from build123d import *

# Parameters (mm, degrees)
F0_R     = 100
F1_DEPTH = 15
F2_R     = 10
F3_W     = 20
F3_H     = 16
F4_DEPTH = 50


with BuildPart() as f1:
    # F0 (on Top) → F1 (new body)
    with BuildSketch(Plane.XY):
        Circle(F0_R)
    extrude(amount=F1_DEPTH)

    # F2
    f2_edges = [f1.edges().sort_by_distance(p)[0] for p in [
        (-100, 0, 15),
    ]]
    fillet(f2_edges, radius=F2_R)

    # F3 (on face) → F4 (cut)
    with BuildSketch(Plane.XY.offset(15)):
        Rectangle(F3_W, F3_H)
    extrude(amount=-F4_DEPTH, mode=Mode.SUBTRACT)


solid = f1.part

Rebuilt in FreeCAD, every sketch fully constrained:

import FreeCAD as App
import Part
import Sketcher
from FreeCAD import Vector
Q = App.Units.Quantity


def edges_at(feature, points):
    """Names of the edges that pass closest to the given points."""
    edges = feature.Shape.Edges
    near = lambda p: min(range(len(edges)), key=lambda i: edges[i].distToShape(Part.Vertex(*p))[0])
    return sorted({f"Edge{near(p) + 1}" for p in points})

doc = App.newDocument("Part")
params = doc.addObject("Spreadsheet::Sheet", "Params")
for row, (alias, value) in enumerate([
    ("sketch1_diameter", "200 mm"),
    ("pad1_length", "15 mm"),
    ("fillet_radius", "10 mm"),
    ("sketch2_width", "20 mm"),
    ("sketch2_height", "16 mm"),
    ("pocket1_length", "50 mm"),
], start=1):
    params.set(f"A{row}", alias)
    params.set(f"B{row}", "=" + value)
    params.setAlias(f"B{row}", alias)

body = doc.addObject("PartDesign::Body", "Body")

# Sketch on XY plane
sketch1 = body.newObject("Sketcher::SketchObject", "Sketch")
sketch1.AttachmentSupport = (doc.getObject("XY_Plane"), [""])
sketch1.MapMode = "FlatFace"
sketch1.addGeometry(Part.Circle(Vector(0, 0, 0), Vector(0, 0, 1), 100), False)
sketch1.addConstraint([
    Sketcher.Constraint("Coincident", 0, 3, -1, 1),
    Sketcher.Constraint("Diameter", 0, Q("200 mm")),
])
sketch1.setExpression("Constraints[1]", "Params.sketch1_diameter")
pad1 = body.newObject("PartDesign::Pad", "Pad")
pad1.Profile = sketch1
pad1.setExpression("Length", "Params.pad1_length")
doc.recompute()

fillet = body.newObject("PartDesign::Fillet", "Fillet")
fillet.Base = (pad1, edges_at(pad1, [(-100, 0, 15)]))
fillet.setExpression("Radius", "Params.fillet_radius")

# Sketch on XY plane
sketch2 = body.newObject("Sketcher::SketchObject", "Sketch001")
sketch2.AttachmentSupport = (doc.getObject("XY_Plane"), [""])
sketch2.MapMode = "FlatFace"
sketch2.AttachmentOffset = App.Placement(Vector(0, 0, 15), App.Rotation())
sketch2.addGeometry([
    Part.LineSegment(Vector(-10, 8, 0), Vector(-10, -8, 0)),
    Part.LineSegment(Vector(-10, -8, 0), Vector(10, -8, 0)),
    Part.LineSegment(Vector(10, -8, 0), Vector(10, 8, 0)),
    Part.LineSegment(Vector(10, 8, 0), Vector(-10, 8, 0)),
], False)
sketch2.addConstraint([
    Sketcher.Constraint("Coincident", 0, 2, 1, 1),
    Sketcher.Constraint("Coincident", 1, 2, 2, 1),
    Sketcher.Constraint("Coincident", 2, 2, 3, 1),
    Sketcher.Constraint("Coincident", 3, 2, 0, 1),
    Sketcher.Constraint("Vertical", 0),
    Sketcher.Constraint("Horizontal", 1),
    Sketcher.Constraint("Vertical", 2),
    Sketcher.Constraint("Horizontal", 3),
    Sketcher.Constraint("Symmetric", 0, 2, 2, 2, -1, 1),
    Sketcher.Constraint("DistanceX", 1, 1, 1, 2, Q("20 mm")),
    Sketcher.Constraint("DistanceY", 0, 2, 0, 1, Q("16 mm")),
])
sketch2.setExpression("Constraints[9]", "Params.sketch2_width")
sketch2.setExpression("Constraints[10]", "Params.sketch2_height")
pocket1 = body.newObject("PartDesign::Pocket", "Pocket")
pocket1.Profile = sketch2
pocket1.setExpression("Length", "Params.pocket1_length")

doc.recompute()
